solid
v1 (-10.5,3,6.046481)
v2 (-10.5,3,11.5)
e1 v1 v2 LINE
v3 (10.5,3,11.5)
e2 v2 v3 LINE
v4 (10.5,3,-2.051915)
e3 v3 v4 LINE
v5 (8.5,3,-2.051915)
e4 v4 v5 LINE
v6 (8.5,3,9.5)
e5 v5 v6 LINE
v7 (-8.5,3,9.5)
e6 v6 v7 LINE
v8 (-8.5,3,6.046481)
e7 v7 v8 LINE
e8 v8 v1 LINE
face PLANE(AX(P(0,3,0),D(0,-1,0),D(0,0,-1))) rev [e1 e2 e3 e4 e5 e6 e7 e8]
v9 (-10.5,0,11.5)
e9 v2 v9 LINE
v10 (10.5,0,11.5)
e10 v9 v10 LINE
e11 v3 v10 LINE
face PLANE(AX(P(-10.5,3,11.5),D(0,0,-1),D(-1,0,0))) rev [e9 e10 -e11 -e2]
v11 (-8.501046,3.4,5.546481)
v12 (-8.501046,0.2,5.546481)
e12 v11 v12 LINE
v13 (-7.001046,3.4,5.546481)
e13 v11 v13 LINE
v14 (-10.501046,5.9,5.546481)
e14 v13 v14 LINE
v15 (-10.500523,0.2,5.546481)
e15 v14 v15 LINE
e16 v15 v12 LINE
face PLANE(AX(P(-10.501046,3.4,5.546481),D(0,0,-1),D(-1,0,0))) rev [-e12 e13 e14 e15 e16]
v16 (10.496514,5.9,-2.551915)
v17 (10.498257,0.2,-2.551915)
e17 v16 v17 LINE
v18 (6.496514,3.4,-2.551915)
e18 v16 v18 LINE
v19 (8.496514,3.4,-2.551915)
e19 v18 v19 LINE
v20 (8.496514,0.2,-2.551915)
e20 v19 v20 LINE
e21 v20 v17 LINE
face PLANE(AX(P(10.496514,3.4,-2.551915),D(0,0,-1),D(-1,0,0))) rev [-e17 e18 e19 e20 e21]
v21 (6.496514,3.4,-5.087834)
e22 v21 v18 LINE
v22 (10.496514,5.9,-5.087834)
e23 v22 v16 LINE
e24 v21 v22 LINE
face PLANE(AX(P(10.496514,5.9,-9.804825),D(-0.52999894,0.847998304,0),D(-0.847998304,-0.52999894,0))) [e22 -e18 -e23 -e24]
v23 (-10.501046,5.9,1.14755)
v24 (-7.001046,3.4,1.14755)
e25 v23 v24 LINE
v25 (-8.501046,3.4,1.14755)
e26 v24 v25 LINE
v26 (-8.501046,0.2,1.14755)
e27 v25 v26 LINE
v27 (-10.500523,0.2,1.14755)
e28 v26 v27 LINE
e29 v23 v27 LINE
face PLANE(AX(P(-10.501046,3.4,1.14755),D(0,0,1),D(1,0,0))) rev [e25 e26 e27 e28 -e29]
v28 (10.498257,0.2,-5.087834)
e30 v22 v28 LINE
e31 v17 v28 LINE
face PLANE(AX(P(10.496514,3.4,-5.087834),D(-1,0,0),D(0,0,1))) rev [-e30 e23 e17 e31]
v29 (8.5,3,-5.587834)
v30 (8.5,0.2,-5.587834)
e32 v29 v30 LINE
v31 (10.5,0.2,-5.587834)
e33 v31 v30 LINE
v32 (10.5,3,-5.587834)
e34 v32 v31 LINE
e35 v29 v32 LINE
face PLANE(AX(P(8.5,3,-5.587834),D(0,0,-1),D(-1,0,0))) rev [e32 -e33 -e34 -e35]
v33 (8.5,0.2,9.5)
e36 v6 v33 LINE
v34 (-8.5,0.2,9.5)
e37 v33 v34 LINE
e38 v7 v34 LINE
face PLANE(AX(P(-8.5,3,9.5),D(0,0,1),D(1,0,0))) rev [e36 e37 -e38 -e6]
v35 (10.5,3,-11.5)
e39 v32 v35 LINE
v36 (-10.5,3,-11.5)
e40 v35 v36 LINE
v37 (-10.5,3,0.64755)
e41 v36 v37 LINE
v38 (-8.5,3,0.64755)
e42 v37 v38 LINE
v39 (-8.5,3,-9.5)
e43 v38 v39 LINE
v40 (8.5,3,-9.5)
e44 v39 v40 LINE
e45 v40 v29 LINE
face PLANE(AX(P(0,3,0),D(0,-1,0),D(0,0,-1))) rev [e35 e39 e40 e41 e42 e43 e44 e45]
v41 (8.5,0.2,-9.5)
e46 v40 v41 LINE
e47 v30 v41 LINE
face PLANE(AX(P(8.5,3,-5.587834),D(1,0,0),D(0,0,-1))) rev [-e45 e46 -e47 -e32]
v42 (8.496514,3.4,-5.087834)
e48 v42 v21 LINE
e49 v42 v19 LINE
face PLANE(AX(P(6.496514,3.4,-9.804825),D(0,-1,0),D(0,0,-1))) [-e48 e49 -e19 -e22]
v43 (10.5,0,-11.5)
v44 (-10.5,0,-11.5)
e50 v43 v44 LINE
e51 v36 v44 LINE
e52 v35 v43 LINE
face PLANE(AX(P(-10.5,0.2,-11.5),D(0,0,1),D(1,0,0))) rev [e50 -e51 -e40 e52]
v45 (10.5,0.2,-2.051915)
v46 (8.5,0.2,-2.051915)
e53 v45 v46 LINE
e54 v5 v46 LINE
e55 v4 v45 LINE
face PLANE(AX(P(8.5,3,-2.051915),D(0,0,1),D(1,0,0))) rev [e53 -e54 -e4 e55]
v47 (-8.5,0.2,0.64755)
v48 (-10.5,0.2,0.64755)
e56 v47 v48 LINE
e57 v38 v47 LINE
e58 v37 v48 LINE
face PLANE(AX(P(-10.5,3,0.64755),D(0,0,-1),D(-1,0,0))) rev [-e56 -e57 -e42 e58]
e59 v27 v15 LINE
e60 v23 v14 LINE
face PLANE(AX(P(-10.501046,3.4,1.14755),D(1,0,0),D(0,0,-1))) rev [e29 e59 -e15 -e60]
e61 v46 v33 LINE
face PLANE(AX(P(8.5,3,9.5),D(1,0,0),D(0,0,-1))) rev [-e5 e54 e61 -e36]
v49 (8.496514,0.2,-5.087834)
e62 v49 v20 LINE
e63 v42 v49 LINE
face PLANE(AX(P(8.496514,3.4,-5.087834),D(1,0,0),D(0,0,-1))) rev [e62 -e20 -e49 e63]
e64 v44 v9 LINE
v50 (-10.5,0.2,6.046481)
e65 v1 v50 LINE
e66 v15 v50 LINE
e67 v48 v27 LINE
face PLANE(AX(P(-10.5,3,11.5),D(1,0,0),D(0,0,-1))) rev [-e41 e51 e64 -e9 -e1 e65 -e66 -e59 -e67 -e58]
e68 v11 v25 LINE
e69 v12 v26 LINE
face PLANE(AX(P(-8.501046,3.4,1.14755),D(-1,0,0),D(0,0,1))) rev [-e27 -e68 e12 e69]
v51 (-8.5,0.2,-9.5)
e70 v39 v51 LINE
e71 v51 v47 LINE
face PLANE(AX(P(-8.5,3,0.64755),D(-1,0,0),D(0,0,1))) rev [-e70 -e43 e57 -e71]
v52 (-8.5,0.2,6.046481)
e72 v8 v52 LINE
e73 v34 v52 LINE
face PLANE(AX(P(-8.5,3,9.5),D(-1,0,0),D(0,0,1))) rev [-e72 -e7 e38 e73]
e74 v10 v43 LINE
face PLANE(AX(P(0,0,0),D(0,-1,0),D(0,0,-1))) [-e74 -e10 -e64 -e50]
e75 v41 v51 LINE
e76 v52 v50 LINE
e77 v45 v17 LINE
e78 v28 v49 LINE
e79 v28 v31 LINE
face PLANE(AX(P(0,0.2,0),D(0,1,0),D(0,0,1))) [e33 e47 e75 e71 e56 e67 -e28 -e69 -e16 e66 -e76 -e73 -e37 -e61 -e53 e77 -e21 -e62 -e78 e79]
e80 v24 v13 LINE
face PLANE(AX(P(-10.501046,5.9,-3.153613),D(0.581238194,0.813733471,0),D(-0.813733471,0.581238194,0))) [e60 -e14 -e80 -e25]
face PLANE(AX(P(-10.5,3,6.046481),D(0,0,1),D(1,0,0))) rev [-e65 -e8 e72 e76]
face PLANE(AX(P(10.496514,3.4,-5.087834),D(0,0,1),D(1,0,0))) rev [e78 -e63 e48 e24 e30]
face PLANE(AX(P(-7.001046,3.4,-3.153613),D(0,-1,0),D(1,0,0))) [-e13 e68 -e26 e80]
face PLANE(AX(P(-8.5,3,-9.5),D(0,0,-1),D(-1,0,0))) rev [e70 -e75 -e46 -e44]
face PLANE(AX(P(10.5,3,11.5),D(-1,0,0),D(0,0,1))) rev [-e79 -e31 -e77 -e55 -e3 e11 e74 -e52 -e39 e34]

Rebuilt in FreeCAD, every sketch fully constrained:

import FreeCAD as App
import Part
import Sketcher

V = App.Vector


def add_polygon(sketch, points):
    """Adds a closed chain of lines whose ends are joined by coincident constraints."""
    first, n = sketch.GeometryCount, len(points)
    for a, b in zip(points, points[1:] + points[:1]):
        sketch.addGeometry(Part.LineSegment(App.Vector(*a, 0), App.Vector(*b, 0)), False)
    for i in range(n):
        sketch.addConstraint(Sketcher.Constraint("Coincident", first + i, 2, first + (i + 1) % n, 1))

doc = App.newDocument("Part")
params = doc.addObject("Spreadsheet::Sheet", "Params")
for row, (alias, value) in enumerate([
    ("sketch1_width", "21 mm"),
    ("sketch1_width2", "2 mm"),
    ("pad1_length", "3 mm"),
    ("sketch2_width", "17 mm"),
    ("sketch2_width2", "2 mm"),
    ("pad2_length", "3 mm"),
    ("sketch3_width", "21 mm"),
    ("sketch3_height", "23 mm"),
    ("pad3_length", "0.2 mm"),
    ("sketch4_width", "2 mm"),
    ("pad4_length", "3.2 mm"),
    ("sketch5_width", "3.5 mm"),
    ("sketch5_height", "2.5 mm"),
    ("pad5_length", "4.398931 mm"),
    ("sketch6_width", "4 mm"),
    ("sketch6_height", "2.5 mm"),
    ("pad6_length", "2.535919 mm"),
], start=1):
    params.set(f"A{row}", alias)
    params.set(f"B{row}", "=" + value)
    params.setAlias(f"B{row}", alias)

body = doc.addObject("PartDesign::Body", "Body")

sketch1 = body.newObject("Sketcher::SketchObject", "Sketch")
sketch1.AttachmentSupport = (doc.getObject("XZ_Plane"), [""])
sketch1.MapMode = "FlatFace"
add_polygon(sketch1, [(-10.5, 6), (-10.5, 11.5), (10.5, 11.5), (10.5, -2.1), (8.5, -2.1), (8.5, 9.5), (-8.5, 9.5), (-8.5, 6)])
sketch1.addConstraint([
    Sketcher.Constraint("Vertical", 0),
    Sketcher.Constraint("Horizontal", 1),
    Sketcher.Constraint("Vertical", 2),
    Sketcher.Constraint("Horizontal", 3),
    Sketcher.Constraint("Vertical", 4),
    Sketcher.Constraint("Horizontal", 5),
    Sketcher.Constraint("Vertical", 6),
    Sketcher.Constraint("Horizontal", 7),
    Sketcher.Constraint("Equal", 3, 7),
    Sketcher.Constraint("DistanceX", 1, 1, 1, 2, 21.0),
    Sketcher.Constraint("DistanceX", 3, 2, 3, 1, 2.0),
    Sketcher.Constraint("DistanceY", 4, 2, 1, 2, 2.0),
    Sketcher.Constraint("DistanceX", 0, 2, -1, 1, 10.5),
    Sketcher.Constraint("DistanceY", -1, 1, 0, 2, 11.5),
    Sketcher.Constraint("DistanceY", 0, 1, 0, 2, 5.453519),
    Sketcher.Constraint("DistanceY", 2, 2, 2, 1, 13.551915),
])
sketch1.setExpression("Constraints[17]", "Params.sketch1_width")
sketch1.setExpression("Constraints[18]", "Params.sketch1_width2")
pad1 = body.newObject("PartDesign::Pad", "Pad")
pad1.Profile = sketch1
pad1.setExpression("Length", "Params.pad1_length")
pad1.Reversed = True
body2 = doc.addObject("PartDesign::Body", "Body001")

sketch2 = body2.newObject("Sketcher::SketchObject", "Sketch001")
sketch2.AttachmentSupport = (doc.getObject("XZ_Plane001"), [""])
sketch2.MapMode = "FlatFace"
add_polygon(sketch2, [(-8.5, -9.5), (8.5, -9.5), (8.5, -5.6), (10.5, -5.6), (10.5, -11.5), (-10.5, -11.5), (-10.5, 0.6), (-8.5, 0.6)])
sketch2.addConstraint([
    Sketcher.Constraint("Horizontal", 0),
    Sketcher.Constraint("Vertical", 1),
    Sketcher.Constraint("Horizontal", 2),
    Sketcher.Constraint("Vertical", 3),
    Sketcher.Constraint("Horizontal", 4),
    Sketcher.Constraint("Vertical", 5),
    Sketcher.Constraint("Horizontal", 6),
    Sketcher.Constraint("Vertical", 7),
    Sketcher.Constraint("Equal", 2, 6),
    Sketcher.Constraint("DistanceX", 0, 1, 0, 2, 17.0),
    Sketcher.Constraint("DistanceX", 2, 1, 2, 2, 2.0),
    Sketcher.Constraint("DistanceY", 3, 2, 0, 2, 2.0),
    Sketcher.Constraint("DistanceX", -1, 1, 0, 2, 8.5),
    Sketcher.Constraint("DistanceY", 0, 2, -1, 1, 9.5),
    Sketcher.Constraint("DistanceY", 5, 1, 5, 2, 12.14755),
    Sketcher.Constraint("DistanceY", 1, 1, 1, 2, 3.912166),
])
sketch2.setExpression("Constraints[17]", "Params.sketch2_width")
sketch2.setExpression("Constraints[18]", "Params.sketch2_width2")
pad2 = body2.newObject("PartDesign::Pad", "Pad001")
pad2.Profile = sketch2
pad2.setExpression("Length", "Params.pad2_length")
pad2.Reversed = True
body.AllowCompound = True
doc.recompute()

boolean = body.newObject("PartDesign::Boolean", "Boolean")
boolean.Type = "Fuse"
boolean.addObjects([body2])

sketch3 = body.newObject("Sketcher::SketchObject", "Sketch002")
sketch3.AttachmentSupport = (doc.getObject("XZ_Plane"), [""])
sketch3.MapMode = "FlatFace"
add_polygon(sketch3, [(-10, -12), (-10, 12), (10, 12), (10, -12)])
sketch3.addConstraint([
    Sketcher.Constraint("Vertical", 0),
    Sketcher.Constraint("Horizontal", 1),
    Sketcher.Constraint("Vertical", 2),
    Sketcher.Constraint("Horizontal", 3),
    Sketcher.Constraint("Symmetric", 0, 2, 2, 2, -1, 1),
    Sketcher.Constraint("DistanceX", 1, 1, 1, 2, 21.0),
    Sketcher.Constraint("DistanceY", 0, 1, 0, 2, 23.0),
])
sketch3.setExpression("Constraints[9]", "Params.sketch3_width")
sketch3.setExpression("Constraints[10]", "Params.sketch3_height")
pad3 = body.newObject("PartDesign::Pad", "Pad002")
pad3.Profile = sketch3
pad3.setExpression("Length", "Params.pad3_length")
pad3.Reversed = True

sketch4 = body.newObject("Sketcher::SketchObject", "Sketch003")
sketch4.AttachmentSupport = (doc.getObject("XZ_Plane"), [""])
sketch4.MapMode = "FlatFace"
sketch4.AttachmentOffset = App.Placement(V(0, 0, -0.2), App.Rotation())
add_polygon(sketch4, [(-10.5, 1.1), (-10.5, 5.5), (-8.5, 5.5), (-8.5, 1.1)])
add_polygon(sketch4, [(8.5, -5.1), (8.5, -2.6), (10.5, -2.6), (10.5, -5.1)])
sketch4.addConstraint([
    Sketcher.Constraint("Vertical", 0),
    Sketcher.Constraint("Horizontal", 1),
    Sketcher.Constraint("Vertical", 2),
    Sketcher.Constraint("Horizontal", 3),
    Sketcher.Constraint("Vertical", 4),
    Sketcher.Constraint("Horizontal", 5),
    Sketcher.Constraint("Vertical", 6),
    Sketcher.Constraint("Horizontal", 7),
    Sketcher.Constraint("Equal", 3, 5),
    Sketcher.Constraint("DistanceX", 1, 1, 1, 2, 2.0),
    Sketcher.Constraint("DistanceY", 0, 1, 0, 2, 4.398931),
    Sketcher.Constraint("DistanceY", 4, 1, 4, 2, 2.535919),
    Sketcher.Constraint("DistanceY", -1, 1, 0, 2, 5.546481),
    Sketcher.Constraint("DistanceX", 2, 2, 4, 2, 16.997559),
    Sketcher.Constraint("DistanceX", 0, 2, -1, 1, 10.501046),
    Sketcher.Constraint("DistanceY", 4, 2, -1, 1, 2.551915),
])
sketch4.setExpression("Constraints[17]", "Params.sketch4_width")
pad4 = body.newObject("PartDesign::Pad", "Pad003")
pad4.Profile = sketch4
pad4.setExpression("Length", "Params.pad4_length")
pad4.Reversed = True

sketch5 = body.newObject("Sketcher::SketchObject", "Sketch004")
sketch5.AttachmentSupport = (doc.getObject("XY_Plane"), [""])
sketch5.MapMode = "FlatFace"
sketch5.AttachmentOffset = App.Placement(V(0, 0, 5.546481), App.Rotation())
add_polygon(sketch5, [(-10.5, 5.9), (-10.5, 3.4), (-7, 3.4)])
sketch5.addConstraint([
    Sketcher.Constraint("Vertical", 0),
    Sketcher.Constraint("Horizontal", 1),
    Sketcher.Constraint("DistanceX", 1, 1, 1, 2, 3.5),
    Sketcher.Constraint("DistanceY", 0, 2, 0, 1, 2.5),
    Sketcher.Constraint("DistanceY", -1, 1, 0, 2, 3.4),
    Sketcher.Constraint("DistanceX", 0, 2, -1, 1, 10.501046),
])
sketch5.setExpression("Constraints[5]", "Params.sketch5_width")
sketch5.setExpression("Constraints[6]", "Params.sketch5_height")
pad5 = body.newObject("PartDesign::Pad", "Pad004")
pad5.Profile = sketch5
pad5.setExpression("Length", "Params.pad5_length")
pad5.Reversed = True

sketch6 = body.newObject("Sketcher::SketchObject", "Sketch005")
sketch6.AttachmentSupport = (doc.getObject("XY_Plane"), [""])
sketch6.MapMode = "FlatFace"
sketch6.AttachmentOffset = App.Placement(V(0, 0, -2.551915), App.Rotation())
add_polygon(sketch6, [(10.5, 3.4), (10.5, 5.9), (6.5, 3.4)])
sketch6.addConstraint([
    Sketcher.Constraint("Vertical", 0),
    Sketcher.Constraint("Horizontal", 2),
    Sketcher.Constraint("DistanceX", 2, 1, 2, 2, 4.0),
    Sketcher.Constraint("DistanceY", 0, 1, 0, 2, 2.5),
    Sketcher.Constraint("DistanceY", -1, 1, 0, 2, 5.9),
    Sketcher.Constraint("DistanceX", -1, 1, 0, 2, 10.496514),
])
sketch6.setExpression("Constraints[5]", "Params.sketch6_width")
sketch6.setExpression("Constraints[6]", "Params.sketch6_height")
pad6 = body.newObject("PartDesign::Pad", "Pad005")
pad6.Profile = sketch6
pad6.setExpression("Length", "Params.pad6_length")
pad6.Reversed = True

doc.recompute()
